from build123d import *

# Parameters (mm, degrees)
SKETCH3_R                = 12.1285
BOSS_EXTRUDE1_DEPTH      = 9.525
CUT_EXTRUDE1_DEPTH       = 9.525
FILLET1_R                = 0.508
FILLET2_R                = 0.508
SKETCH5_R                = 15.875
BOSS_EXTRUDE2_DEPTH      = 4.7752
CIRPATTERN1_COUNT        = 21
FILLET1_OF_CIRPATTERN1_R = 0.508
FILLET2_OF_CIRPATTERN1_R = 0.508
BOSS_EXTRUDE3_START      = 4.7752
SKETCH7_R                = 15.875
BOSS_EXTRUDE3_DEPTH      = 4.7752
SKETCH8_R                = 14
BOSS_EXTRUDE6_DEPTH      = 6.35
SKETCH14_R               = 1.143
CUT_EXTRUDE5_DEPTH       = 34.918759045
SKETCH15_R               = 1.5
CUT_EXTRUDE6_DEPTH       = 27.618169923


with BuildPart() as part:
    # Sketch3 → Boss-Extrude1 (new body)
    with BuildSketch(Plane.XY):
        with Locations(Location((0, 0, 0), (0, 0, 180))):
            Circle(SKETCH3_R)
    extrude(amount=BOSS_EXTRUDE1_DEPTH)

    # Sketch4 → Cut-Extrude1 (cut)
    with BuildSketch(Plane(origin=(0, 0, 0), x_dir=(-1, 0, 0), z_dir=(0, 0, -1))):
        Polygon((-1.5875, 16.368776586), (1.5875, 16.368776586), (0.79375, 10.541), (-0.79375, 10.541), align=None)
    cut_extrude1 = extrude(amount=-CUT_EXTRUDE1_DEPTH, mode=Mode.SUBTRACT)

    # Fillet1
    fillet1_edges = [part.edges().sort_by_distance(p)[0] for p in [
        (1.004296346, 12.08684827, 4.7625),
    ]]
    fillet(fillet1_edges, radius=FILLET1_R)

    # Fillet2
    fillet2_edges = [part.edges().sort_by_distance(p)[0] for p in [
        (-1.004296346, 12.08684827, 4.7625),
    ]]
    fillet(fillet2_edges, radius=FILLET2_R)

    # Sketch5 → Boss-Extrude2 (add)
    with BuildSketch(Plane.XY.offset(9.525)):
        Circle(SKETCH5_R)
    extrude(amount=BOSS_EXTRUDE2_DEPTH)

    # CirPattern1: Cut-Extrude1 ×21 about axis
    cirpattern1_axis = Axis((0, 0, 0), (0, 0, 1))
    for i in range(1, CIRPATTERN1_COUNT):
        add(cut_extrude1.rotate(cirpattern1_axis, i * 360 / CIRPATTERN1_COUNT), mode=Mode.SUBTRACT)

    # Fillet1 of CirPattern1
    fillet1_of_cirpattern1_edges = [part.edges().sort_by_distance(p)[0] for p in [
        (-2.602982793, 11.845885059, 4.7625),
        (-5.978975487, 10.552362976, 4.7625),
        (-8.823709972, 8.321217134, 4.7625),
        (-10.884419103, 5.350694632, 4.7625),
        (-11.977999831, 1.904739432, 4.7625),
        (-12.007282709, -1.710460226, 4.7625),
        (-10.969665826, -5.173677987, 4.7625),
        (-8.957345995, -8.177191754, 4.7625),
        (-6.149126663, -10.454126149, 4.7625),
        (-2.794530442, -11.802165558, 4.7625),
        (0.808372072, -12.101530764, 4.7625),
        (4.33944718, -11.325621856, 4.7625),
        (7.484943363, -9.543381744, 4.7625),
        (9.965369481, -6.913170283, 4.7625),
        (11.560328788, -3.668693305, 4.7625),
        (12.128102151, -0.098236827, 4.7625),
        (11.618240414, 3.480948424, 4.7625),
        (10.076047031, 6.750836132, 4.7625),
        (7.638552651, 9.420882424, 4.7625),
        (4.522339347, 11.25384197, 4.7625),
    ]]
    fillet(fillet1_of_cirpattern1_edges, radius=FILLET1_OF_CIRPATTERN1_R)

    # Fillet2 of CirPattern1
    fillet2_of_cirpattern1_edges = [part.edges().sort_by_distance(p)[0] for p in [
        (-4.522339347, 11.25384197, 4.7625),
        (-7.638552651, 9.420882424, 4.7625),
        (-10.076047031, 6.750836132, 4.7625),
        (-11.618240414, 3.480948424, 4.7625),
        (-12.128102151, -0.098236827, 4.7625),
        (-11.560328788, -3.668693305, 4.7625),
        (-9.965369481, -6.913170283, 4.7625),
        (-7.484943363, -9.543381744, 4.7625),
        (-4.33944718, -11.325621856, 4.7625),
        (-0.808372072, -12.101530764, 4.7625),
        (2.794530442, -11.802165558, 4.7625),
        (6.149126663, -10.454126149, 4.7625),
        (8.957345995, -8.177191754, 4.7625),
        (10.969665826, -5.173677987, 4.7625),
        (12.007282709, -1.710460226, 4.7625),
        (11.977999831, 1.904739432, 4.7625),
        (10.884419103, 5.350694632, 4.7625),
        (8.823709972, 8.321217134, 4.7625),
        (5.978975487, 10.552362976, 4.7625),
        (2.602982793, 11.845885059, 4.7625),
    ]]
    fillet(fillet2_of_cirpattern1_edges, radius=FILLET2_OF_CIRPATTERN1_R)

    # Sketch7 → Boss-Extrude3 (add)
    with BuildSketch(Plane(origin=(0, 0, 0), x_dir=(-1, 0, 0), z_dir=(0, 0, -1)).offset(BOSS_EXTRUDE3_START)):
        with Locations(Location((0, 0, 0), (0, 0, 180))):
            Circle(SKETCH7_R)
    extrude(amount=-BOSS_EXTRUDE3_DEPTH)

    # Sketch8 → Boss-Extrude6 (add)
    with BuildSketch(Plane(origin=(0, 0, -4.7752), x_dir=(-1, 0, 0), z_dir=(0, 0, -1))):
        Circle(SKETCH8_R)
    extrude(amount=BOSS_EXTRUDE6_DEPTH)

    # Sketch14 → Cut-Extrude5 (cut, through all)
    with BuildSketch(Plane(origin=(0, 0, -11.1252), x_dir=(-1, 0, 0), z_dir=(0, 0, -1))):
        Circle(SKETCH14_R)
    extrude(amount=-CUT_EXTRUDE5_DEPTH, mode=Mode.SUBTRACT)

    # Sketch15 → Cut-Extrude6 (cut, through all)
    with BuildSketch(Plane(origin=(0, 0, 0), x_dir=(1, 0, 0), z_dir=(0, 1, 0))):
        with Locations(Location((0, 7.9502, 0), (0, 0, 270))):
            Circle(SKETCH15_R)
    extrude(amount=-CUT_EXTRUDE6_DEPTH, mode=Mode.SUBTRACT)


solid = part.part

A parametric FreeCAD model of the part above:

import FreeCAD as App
import Part
import Sketcher
Q = App.Units.Quantity


def edges_at(feature, points):
    """Names of the edges that pass closest to the given points."""
    edges = feature.Shape.Edges
    near = lambda p: min(range(len(edges)), key=lambda i: edges[i].distToShape(Part.Vertex(*p))[0])
    return sorted({f"Edge{near(p) + 1}" for p in points})


def add_polygon(sketch, points):
    """Adds a closed chain of lines whose ends are joined by coincident constraints."""
    first, n = sketch.GeometryCount, len(points)
    for a, b in zip(points, points[1:] + points[:1]):
        sketch.addGeometry(Part.LineSegment(App.Vector(*a, 0), App.Vector(*b, 0)), False)
    for i in range(n):
        sketch.addConstraint(Sketcher.Constraint("Coincident", first + i, 2, first + (i + 1) % n, 1))

doc = App.newDocument("Part")
body = doc.addObject("PartDesign::Body", "Body")

# Sketch on XY plane
sketch1 = body.newObject("Sketcher::SketchObject", "Sketch")
sketch1.AttachmentSupport = (doc.getObject("XY_Plane"), [""])
sketch1.MapMode = "FlatFace"
sketch1.addGeometry(Part.Circle(App.Vector(0, 0, 0), App.Vector(0, 0, 1), 12), False)
sketch1.addConstraint([
    Sketcher.Constraint("Coincident", 0, 3, -1, 1),
    Sketcher.Constraint("Diameter", 0, Q("0.955 in")),
])
pad1 = body.newObject("PartDesign::Pad", "Pad")
pad1.Profile = sketch1
pad1.Length = Q("0.375 in")

# Sketch on XY plane
sketch2 = body.newObject("Sketcher::SketchObject", "Sketch001")
sketch2.AttachmentSupport = (doc.getObject("XY_Plane"), [""])
sketch2.MapMode = "FlatFace"
add_polygon(sketch2, [(-1.6, 16.4), (1.6, 16.4), (0.8, 10.5), (-0.8, 10.5)])  # lines 0-3
sketch2.addConstraint([
    Sketcher.Constraint("Horizontal", 0),
    Sketcher.Constraint("Horizontal", 2),
    Sketcher.Constraint("Equal", 1, 3),
    Sketcher.Constraint("DistanceX", 0, 1, 0, 2, Q("0.125 in")),
    Sketcher.Constraint("DistanceX", 2, 2, 2, 1, Q("0.0625 in")),
    Sketcher.Constraint("DistanceX", -1, 1, 0, 2, Q("0.0625 in")),
    Sketcher.Constraint("DistanceY", -1, 1, 1, 2, Q("0.415 in")),
    Sketcher.Constraint("Distance", 1, 5.881583),
])
pocket1 = body.newObject("PartDesign::Pocket", "Pocket")
pocket1.Profile = sketch2
pocket1.Length = Q("0.375 in")
pocket1.Reversed = True
doc.recompute()

fillet = body.newObject("PartDesign::Fillet", "Fillet")
fillet.Base = (pocket1, edges_at(pocket1, [(1.004, 12.087, 4.763)]))
fillet.Radius = Q("0.02 in")
doc.recompute()

fillet2 = body.newObject("PartDesign::Fillet", "Fillet001")
fillet2.Base = (fillet, edges_at(fillet, [(-1.004, 12.087, 4.763)]))
fillet2.Radius = Q("0.02 in")

# Sketch on XY plane
sketch3 = body.newObject("Sketcher::SketchObject", "Sketch002")
sketch3.AttachmentSupport = (doc.getObject("XY_Plane"), [""])
sketch3.MapMode = "FlatFace"
sketch3.AttachmentOffset = App.Placement(App.Vector(0, 0, 0.375 * 25.4), App.Rotation())
sketch3.addGeometry(Part.Circle(App.Vector(0, 0, 0), App.Vector(0, 0, 1), 16), False)
sketch3.addConstraint([
    Sketcher.Constraint("Coincident", 0, 3, -1, 1),
    Sketcher.Constraint("Diameter", 0, Q("1.25 in")),
])
pad2 = body.newObject("PartDesign::Pad", "Pad001")
pad2.Profile = sketch3
pad2.Length = Q("0.188 in")
doc.recompute()

polarpattern = body.newObject("PartDesign::PolarPattern", "PolarPattern")
polarpattern.Originals = [pocket1]
polarpattern.Axis = (doc.getObject("Z_Axis"), [""])
polarpattern.Angle = 360
polarpattern.Occurrences = 21
body.Tip = polarpattern
doc.recompute()

fillet3 = body.newObject("PartDesign::Fillet", "Fillet002")
fillet3.Base = (polarpattern, edges_at(polarpattern, [
    (-2.603, 11.846, 4.763),
    (-5.979, 10.552, 4.763),
    (-8.824, 8.321, 4.763),
    (-10.884, 5.351, 4.763),
    (-11.978, 1.905, 4.763),
    (-12.007, -1.71, 4.763),
    (-10.97, -5.174, 4.763),
    (-8.957, -8.177, 4.763),
    (-6.149, -10.454, 4.763),
    (-2.795, -11.802, 4.763),
    (0.808, -12.102, 4.763),
    (4.339, -11.326, 4.763),
    (7.485, -9.543, 4.763),
    (9.965, -6.913, 4.763),
    (11.56, -3.669, 4.763),
    (12.128, -0.098, 4.763),
    (11.618, 3.481, 4.763),
    (10.076, 6.751, 4.763),
    (7.639, 9.421, 4.763),
    (4.522, 11.254, 4.763),
]))
fillet3.Radius = Q("0.02 in")
doc.recompute()

fillet4 = body.newObject("PartDesign::Fillet", "Fillet003")
fillet4.Base = (fillet3, edges_at(fillet3, [
    (-4.522, 11.254, 4.763),
    (-7.639, 9.421, 4.763),
    (-10.076, 6.751, 4.763),
    (-11.618, 3.481, 4.763),
    (-12.128, -0.098, 4.763),
    (-11.56, -3.669, 4.763),
    (-9.965, -6.913, 4.763),
    (-7.485, -9.543, 4.763),
    (-4.339, -11.326, 4.763),
    (-0.808, -12.102, 4.763),
    (2.795, -11.802, 4.763),
    (6.149, -10.454, 4.763),
    (8.957, -8.177, 4.763),
    (10.97, -5.174, 4.763),
    (12.007, -1.71, 4.763),
    (11.978, 1.905, 4.763),
    (10.884, 5.351, 4.763),
    (8.824, 8.321, 4.763),
    (5.979, 10.552, 4.763),
    (2.603, 11.846, 4.763),
]))
fillet4.Radius = Q("0.02 in")

# Sketch on XY plane
sketch4 = body.newObject("Sketcher::SketchObject", "Sketch003")
sketch4.AttachmentSupport = (doc.getObject("XY_Plane"), [""])
sketch4.MapMode = "FlatFace"
sketch4.AttachmentOffset = App.Placement(App.Vector(0, 0, -0.188 * 25.4), App.Rotation())
sketch4.addGeometry(Part.Circle(App.Vector(0, 0, 0), App.Vector(0, 0, 1), 16), False)
sketch4.addConstraint([
    Sketcher.Constraint("Coincident", 0, 3, -1, 1),
    Sketcher.Constraint("Diameter", 0, Q("1.25 in")),
])
pad3 = body.newObject("PartDesign::Pad", "Pad002")
pad3.Profile = sketch4
pad3.Length = Q("0.188 in")

# Sketch on XY plane
sketch5 = body.newObject("Sketcher::SketchObject", "Sketch004")
sketch5.AttachmentSupport = (doc.getObject("XY_Plane"), [""])
sketch5.MapMode = "FlatFace"
sketch5.AttachmentOffset = App.Placement(App.Vector(0, 0, -0.188 * 25.4), App.Rotation())
sketch5.addGeometry(Part.Circle(App.Vector(0, 0, 0), App.Vector(0, 0, 1), 14), False)
sketch5.addConstraint([
    Sketcher.Constraint("Coincident", 0, 3, -1, 1),
    Sketcher.Constraint("Diameter", 0, 28.0),
])
pad4 = body.newObject("PartDesign::Pad", "Pad003")
pad4.Profile = sketch5
pad4.Length = Q("0.25 in")
pad4.Reversed = True

# Sketch on XY plane
sketch6 = body.newObject("Sketcher::SketchObject", "Sketch005")
sketch6.AttachmentSupport = (doc.getObject("XY_Plane"), [""])
sketch6.MapMode = "FlatFace"
sketch6.AttachmentOffset = App.Placement(App.Vector(0, 0, -0.438 * 25.4), App.Rotation())
sketch6.addGeometry(Part.Circle(App.Vector(0, 0, 0), App.Vector(0, 0, 1), 1.1), False)
sketch6.addConstraint([
    Sketcher.Constraint("Coincident", 0, 3, -1, 1),
    Sketcher.Constraint("Diameter", 0, Q("0.09 in")),
])
pocket2 = body.newObject("PartDesign::Pocket", "Pocket001")
pocket2.Profile = sketch6
pocket2.Type = "ThroughAll"
pocket2.Reversed = True

# Sketch on XZ plane
sketch7 = body.newObject("Sketcher::SketchObject", "Sketch006")
sketch7.AttachmentSupport = (doc.getObject("XZ_Plane"), [""])
sketch7.MapMode = "FlatFace"
sketch7.addGeometry(Part.Circle(App.Vector(0, -8, 0), App.Vector(0, 0, 1), 1.5), False)
sketch7.addConstraint([
    Sketcher.Constraint("PointOnObject", 0, 3, -2),
    Sketcher.Constraint("Diameter", 0, 3.0),
    Sketcher.Constraint("DistanceY", 0, 3, -1, 1, Q("0.313 in")),
])
pocket3 = body.newObject("PartDesign::Pocket", "Pocket002")
pocket3.Profile = sketch7
pocket3.Type = "ThroughAll"
pocket3.Reversed = True

doc.recompute()
